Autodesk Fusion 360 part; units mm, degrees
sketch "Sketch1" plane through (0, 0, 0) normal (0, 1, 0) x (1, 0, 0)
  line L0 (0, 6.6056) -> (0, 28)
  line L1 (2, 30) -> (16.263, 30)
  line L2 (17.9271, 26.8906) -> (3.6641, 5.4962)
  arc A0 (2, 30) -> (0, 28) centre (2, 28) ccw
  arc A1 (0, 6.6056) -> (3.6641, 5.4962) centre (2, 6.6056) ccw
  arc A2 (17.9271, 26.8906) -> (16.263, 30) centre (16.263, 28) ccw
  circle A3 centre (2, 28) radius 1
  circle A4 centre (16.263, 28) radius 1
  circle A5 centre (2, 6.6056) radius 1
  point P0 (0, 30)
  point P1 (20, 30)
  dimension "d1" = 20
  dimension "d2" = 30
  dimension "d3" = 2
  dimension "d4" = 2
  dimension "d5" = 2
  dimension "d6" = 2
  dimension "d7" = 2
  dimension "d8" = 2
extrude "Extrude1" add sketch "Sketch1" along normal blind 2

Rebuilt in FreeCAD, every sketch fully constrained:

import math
import FreeCAD as App
import Part
import Sketcher

V = App.Vector
Q = App.Units.Quantity

doc = App.newDocument("Part")
body = doc.addObject("PartDesign::Body", "Body")

sketch1 = body.newObject("Sketcher::SketchObject", "Sketch")
sketch1.AttachmentSupport = (doc.getObject("XZ_Plane"), [""])
sketch1.MapMode = "FlatFace"
sketch1.addGeometry(Part.LineSegment(V(0, -28, 0), V(0, -6.6, 0)), False)
sketch1.addGeometry(Part.ArcOfCircle(Part.Circle(V(2, -6.6, 0), V(0, 0, 1), 2), math.radians(34), math.radians(180)), False)
sketch1.addGeometry(Part.LineSegment(V(3.7, -5.5, 0), V(17.9, -26.9, 0)), False)
sketch1.addGeometry(Part.ArcOfCircle(Part.Circle(V(16.3, -28, 0), V(0, 0, 1), 2), math.radians(-90), math.radians(34)), False)
sketch1.addGeometry(Part.LineSegment(V(16.3, -30, 0), V(2, -30, 0)), False)
sketch1.addGeometry(Part.ArcOfCircle(Part.Circle(V(2, -28, 0), V(0, 0, 1), 2), math.radians(180), math.radians(270)), False)
sketch1.addGeometry(Part.Circle(V(2, -6.6, 0), V(0, 0, 1), 1), False)
sketch1.addGeometry(Part.Circle(V(2, -28, 0), V(0, 0, 1), 1), False)
sketch1.addGeometry(Part.Circle(V(16.3, -28, 0), V(0, 0, 1), 1), False)
sketch1.addConstraint(Sketcher.Constraint("Tangent", 0, 2, 1, 2))
sketch1.addConstraint(Sketcher.Constraint("Tangent", 1, 1, 2, 1))
sketch1.addConstraint(Sketcher.Constraint("Tangent", 2, 2, 3, 2))
sketch1.addConstraint(Sketcher.Constraint("Tangent", 3, 1, 4, 1))
sketch1.addConstraint(Sketcher.Constraint("Tangent", 4, 2, 5, 2))
sketch1.addConstraint(Sketcher.Constraint("Tangent", 5, 1, 0, 1))
sketch1.addConstraint(Sketcher.Constraint("Vertical", 0))
sketch1.addConstraint(Sketcher.Constraint("Horizontal", 4))
sketch1.addConstraint(Sketcher.Constraint("Coincident", 6, 3, 1, 3))
sketch1.addConstraint(Sketcher.Constraint("Coincident", 7, 3, 5, 3))
sketch1.addConstraint(Sketcher.Constraint("Coincident", 8, 3, 3, 3))
sketch1.addConstraint(Sketcher.Constraint("Equal", 1, 3))
sketch1.addConstraint(Sketcher.Constraint("Equal", 3, 5))
sketch1.addConstraint(Sketcher.Constraint("Equal", 6, 7))
sketch1.addConstraint(Sketcher.Constraint("Equal", 7, 8))
sketch1.addConstraint(Sketcher.Constraint("PointOnObject", 0, 2, -2))
sketch1.addConstraint(Sketcher.Constraint("Diameter", 6, 2.0))
sketch1.addConstraint(Sketcher.Constraint("Radius", 1, 2.0))
sketch1.addConstraint(Sketcher.Constraint("DistanceY", 3, 1, -1, 1, 30.0))
sketch1.addConstraint(Sketcher.Constraint("Angle", 2, Q("-56.3098 deg")))
sketch1.addConstraint(Sketcher.Constraint("DistanceX", 4, 2, 4, 1, 14.263))
pad1 = body.newObject("PartDesign::Pad", "Pad")
pad1.Profile = sketch1
pad1.Length = 2
pad1.Reversed = True

doc.recompute()
